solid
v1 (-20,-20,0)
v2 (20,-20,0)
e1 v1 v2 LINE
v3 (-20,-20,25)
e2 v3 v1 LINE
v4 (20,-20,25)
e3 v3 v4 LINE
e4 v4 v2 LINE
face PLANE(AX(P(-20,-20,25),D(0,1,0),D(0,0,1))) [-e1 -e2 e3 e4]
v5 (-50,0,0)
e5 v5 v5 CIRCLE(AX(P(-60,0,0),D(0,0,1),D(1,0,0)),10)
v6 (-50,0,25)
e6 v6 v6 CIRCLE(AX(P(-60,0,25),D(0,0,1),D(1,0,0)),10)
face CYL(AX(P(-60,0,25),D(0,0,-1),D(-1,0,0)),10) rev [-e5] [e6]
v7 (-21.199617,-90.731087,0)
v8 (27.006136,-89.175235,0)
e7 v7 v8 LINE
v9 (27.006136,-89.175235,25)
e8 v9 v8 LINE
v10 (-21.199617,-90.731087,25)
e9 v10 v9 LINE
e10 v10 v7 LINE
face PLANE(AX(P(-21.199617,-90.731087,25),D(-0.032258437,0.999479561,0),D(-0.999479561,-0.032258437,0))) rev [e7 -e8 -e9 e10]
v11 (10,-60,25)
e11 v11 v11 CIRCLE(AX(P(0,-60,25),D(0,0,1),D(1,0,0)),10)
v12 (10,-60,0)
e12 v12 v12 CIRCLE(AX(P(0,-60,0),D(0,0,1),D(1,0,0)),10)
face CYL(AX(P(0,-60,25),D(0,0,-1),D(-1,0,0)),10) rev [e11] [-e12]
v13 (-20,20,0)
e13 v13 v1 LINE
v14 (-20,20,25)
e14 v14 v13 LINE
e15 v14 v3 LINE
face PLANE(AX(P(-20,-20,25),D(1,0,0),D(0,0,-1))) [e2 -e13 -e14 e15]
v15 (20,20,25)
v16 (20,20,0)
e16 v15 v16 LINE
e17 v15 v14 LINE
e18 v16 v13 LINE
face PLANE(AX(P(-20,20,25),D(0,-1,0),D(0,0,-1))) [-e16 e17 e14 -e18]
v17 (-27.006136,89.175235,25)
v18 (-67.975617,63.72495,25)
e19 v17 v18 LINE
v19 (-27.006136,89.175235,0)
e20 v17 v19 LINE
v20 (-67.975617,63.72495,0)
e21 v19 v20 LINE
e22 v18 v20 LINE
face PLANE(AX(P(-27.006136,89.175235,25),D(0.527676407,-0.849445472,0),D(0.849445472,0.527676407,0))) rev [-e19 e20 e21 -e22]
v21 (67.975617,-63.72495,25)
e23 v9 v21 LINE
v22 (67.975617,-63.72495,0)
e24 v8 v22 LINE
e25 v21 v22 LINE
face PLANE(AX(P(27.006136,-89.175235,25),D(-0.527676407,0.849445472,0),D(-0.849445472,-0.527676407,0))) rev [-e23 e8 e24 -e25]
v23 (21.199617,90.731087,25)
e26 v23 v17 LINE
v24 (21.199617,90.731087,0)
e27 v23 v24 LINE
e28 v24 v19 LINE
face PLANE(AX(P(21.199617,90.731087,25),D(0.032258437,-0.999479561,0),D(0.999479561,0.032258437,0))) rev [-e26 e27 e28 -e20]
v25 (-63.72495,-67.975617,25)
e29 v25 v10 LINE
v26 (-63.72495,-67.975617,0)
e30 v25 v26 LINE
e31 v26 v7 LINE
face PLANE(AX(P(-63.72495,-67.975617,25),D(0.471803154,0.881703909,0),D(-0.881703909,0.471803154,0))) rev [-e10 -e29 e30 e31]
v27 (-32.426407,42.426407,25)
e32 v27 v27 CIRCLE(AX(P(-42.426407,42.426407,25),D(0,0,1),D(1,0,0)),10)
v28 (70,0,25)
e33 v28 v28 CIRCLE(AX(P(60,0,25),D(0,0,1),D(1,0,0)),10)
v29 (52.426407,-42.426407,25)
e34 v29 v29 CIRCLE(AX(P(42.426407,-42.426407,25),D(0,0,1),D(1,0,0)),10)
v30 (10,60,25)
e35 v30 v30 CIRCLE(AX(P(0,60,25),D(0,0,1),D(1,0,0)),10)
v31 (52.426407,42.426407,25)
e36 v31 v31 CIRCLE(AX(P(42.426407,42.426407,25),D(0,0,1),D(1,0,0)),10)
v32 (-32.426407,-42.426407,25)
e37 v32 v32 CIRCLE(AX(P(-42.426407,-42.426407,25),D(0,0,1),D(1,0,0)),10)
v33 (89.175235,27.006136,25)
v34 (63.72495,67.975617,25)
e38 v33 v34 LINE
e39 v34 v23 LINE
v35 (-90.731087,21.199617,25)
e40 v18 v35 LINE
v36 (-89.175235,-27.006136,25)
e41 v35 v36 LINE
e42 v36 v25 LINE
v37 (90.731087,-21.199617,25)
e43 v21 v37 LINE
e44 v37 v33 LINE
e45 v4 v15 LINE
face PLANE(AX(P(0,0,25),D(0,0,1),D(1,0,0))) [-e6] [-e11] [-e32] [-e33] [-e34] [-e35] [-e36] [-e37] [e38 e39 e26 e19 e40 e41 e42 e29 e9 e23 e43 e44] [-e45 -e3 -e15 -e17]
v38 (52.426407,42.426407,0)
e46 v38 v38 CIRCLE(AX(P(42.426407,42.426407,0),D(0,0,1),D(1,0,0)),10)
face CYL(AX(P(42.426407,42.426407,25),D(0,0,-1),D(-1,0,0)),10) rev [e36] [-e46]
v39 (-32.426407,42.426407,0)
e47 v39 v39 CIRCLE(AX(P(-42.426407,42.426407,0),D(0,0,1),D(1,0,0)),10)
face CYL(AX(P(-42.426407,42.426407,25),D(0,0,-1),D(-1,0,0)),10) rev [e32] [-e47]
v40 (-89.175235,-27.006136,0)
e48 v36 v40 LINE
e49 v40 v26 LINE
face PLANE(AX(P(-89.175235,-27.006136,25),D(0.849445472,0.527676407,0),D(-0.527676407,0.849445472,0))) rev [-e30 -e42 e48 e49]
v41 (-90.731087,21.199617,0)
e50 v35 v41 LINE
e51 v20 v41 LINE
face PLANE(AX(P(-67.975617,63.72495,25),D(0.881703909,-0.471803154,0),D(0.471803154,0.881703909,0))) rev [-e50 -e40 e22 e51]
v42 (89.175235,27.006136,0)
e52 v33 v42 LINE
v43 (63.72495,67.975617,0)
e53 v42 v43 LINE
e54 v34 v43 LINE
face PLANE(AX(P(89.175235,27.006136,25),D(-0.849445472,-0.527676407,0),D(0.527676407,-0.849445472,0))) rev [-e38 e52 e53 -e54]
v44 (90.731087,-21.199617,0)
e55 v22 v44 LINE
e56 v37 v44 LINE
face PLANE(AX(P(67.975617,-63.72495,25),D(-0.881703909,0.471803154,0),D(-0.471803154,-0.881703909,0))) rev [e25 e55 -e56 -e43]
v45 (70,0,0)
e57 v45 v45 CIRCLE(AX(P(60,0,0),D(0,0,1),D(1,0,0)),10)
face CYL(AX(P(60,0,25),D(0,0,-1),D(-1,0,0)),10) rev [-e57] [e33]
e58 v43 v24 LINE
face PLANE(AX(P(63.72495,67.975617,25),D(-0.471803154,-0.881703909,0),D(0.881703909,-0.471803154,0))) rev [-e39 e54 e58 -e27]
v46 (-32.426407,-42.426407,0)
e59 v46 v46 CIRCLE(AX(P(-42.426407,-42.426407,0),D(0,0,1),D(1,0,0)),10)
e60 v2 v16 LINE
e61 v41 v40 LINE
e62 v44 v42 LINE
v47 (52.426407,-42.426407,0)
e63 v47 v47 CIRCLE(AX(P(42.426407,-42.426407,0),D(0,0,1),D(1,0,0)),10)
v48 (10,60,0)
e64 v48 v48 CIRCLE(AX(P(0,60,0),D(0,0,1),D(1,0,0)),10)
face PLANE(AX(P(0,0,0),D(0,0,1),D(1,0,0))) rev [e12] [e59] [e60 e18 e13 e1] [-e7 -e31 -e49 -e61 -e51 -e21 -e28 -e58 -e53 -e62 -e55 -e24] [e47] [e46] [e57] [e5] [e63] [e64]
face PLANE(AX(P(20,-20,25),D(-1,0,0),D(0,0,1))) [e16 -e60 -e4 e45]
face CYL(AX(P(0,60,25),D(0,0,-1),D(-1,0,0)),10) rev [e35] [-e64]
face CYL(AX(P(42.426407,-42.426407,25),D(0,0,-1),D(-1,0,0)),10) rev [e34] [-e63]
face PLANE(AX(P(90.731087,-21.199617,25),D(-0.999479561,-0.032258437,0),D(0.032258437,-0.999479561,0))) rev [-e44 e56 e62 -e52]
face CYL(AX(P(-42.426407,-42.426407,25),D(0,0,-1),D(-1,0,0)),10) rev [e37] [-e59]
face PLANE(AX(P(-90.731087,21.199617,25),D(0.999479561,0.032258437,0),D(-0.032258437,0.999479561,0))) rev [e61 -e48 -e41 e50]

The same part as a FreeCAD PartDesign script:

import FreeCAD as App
import Part
import Sketcher

doc = App.newDocument("Part")
body = doc.addObject("PartDesign::Body", "Body")

# Sketch on XY plane
sketch1 = body.newObject("Sketcher::SketchObject", "Sketch")
sketch1.AttachmentSupport = (doc.getObject("XY_Plane"), [""])
sketch1.MapMode = "FlatFace"
sketch1.addGeometry([
    Part.LineSegment(App.Vector(21, 91, 0), App.Vector(-27, 89, 0)),  # 0
    Part.LineSegment(App.Vector(-27, 89, 0), App.Vector(-68, 64, 0)),  # 1
    Part.LineSegment(App.Vector(-68, 64, 0), App.Vector(-91, 21, 0)),  # 2
    Part.LineSegment(App.Vector(-91, 21, 0), App.Vector(-89, -27, 0)),  # 3
    Part.LineSegment(App.Vector(-89, -27, 0), App.Vector(-64, -68, 0)),  # 4
    Part.LineSegment(App.Vector(-64, -68, 0), App.Vector(-21, -91, 0)),  # 5
    Part.LineSegment(App.Vector(-21, -91, 0), App.Vector(27, -89, 0)),  # 6
    Part.LineSegment(App.Vector(27, -89, 0), App.Vector(68, -64, 0)),  # 7
    Part.LineSegment(App.Vector(68, -64, 0), App.Vector(91, -21, 0)),  # 8
    Part.LineSegment(App.Vector(91, -21, 0), App.Vector(89, 27, 0)),  # 9
    Part.LineSegment(App.Vector(89, 27, 0), App.Vector(64, 68, 0)),  # 10
    Part.LineSegment(App.Vector(64, 68, 0), App.Vector(21, 91, 0)),  # 11
    Part.Circle(App.Vector(-42, -42, 0), App.Vector(0, 0, 1), 10),  # 12
    Part.Circle(App.Vector(0, -60, 0), App.Vector(0, 0, 1), 10),  # 13
    Part.Circle(App.Vector(42, -42, 0), App.Vector(0, 0, 1), 10),  # 14
    Part.Circle(App.Vector(-60, 0, 0), App.Vector(0, 0, 1), 10),  # 15
    Part.Circle(App.Vector(-42, 42, 0), App.Vector(0, 0, 1), 10),  # 16
    Part.LineSegment(App.Vector(20, -20, 0), App.Vector(-20, -20, 0)),  # 17
    Part.LineSegment(App.Vector(-20, -20, 0), App.Vector(-20, 20, 0)),  # 18
    Part.LineSegment(App.Vector(-20, 20, 0), App.Vector(20, 20, 0)),  # 19
    Part.LineSegment(App.Vector(20, 20, 0), App.Vector(20, -20, 0)),  # 20
    Part.Circle(App.Vector(60, 0, 0), App.Vector(0, 0, 1), 10),  # 21
    Part.Circle(App.Vector(0, 60, 0), App.Vector(0, 0, 1), 10),  # 22
    Part.Circle(App.Vector(42, 42, 0), App.Vector(0, 0, 1), 10),  # 23
], False)
sketch1.addConstraint([
    Sketcher.Constraint("Coincident", 0, 2, 1, 1),
    Sketcher.Constraint("Coincident", 1, 2, 2, 1),
    Sketcher.Constraint("Coincident", 2, 2, 3, 1),
    Sketcher.Constraint("Coincident", 3, 2, 4, 1),
    Sketcher.Constraint("Coincident", 4, 2, 5, 1),
    Sketcher.Constraint("Coincident", 5, 2, 6, 1),
    Sketcher.Constraint("Coincident", 6, 2, 7, 1),
    Sketcher.Constraint("Coincident", 7, 2, 8, 1),
    Sketcher.Constraint("Coincident", 8, 2, 9, 1),
    Sketcher.Constraint("Coincident", 9, 2, 10, 1),
    Sketcher.Constraint("Coincident", 10, 2, 11, 1),
    Sketcher.Constraint("Coincident", 11, 2, 0, 1),
    Sketcher.Constraint("Coincident", 17, 2, 18, 1),
    Sketcher.Constraint("Coincident", 18, 2, 19, 1),
    Sketcher.Constraint("Coincident", 19, 2, 20, 1),
    Sketcher.Constraint("Coincident", 20, 2, 17, 1),
    Sketcher.Constraint("Horizontal", 17),
    Sketcher.Constraint("Vertical", 18),
    Sketcher.Constraint("Horizontal", 19),
    Sketcher.Constraint("Vertical", 20),
    Sketcher.Constraint("Equal", 12, 13),
    Sketcher.Constraint("Equal", 13, 14),
    Sketcher.Constraint("Equal", 14, 15),
    Sketcher.Constraint("Equal", 15, 16),
    Sketcher.Constraint("Equal", 16, 21),
    Sketcher.Constraint("Equal", 21, 22),
    Sketcher.Constraint("Equal", 22, 23),
    Sketcher.Constraint("Symmetric", 14, 3, 16, 3, -1, 1),
    Sketcher.Constraint("Symmetric", 15, 3, 21, 3, -1, 1),
    Sketcher.Constraint("Symmetric", 13, 3, 22, 3, -1, 1),
    Sketcher.Constraint("Symmetric", 12, 3, 23, 3, -1, 1),
    Sketcher.Constraint("Symmetric", 0, 2, 6, 2, -1, 1),
    Sketcher.Constraint("Symmetric", 1, 2, 7, 2, -1, 1),
    Sketcher.Constraint("Symmetric", 2, 2, 8, 2, -1, 1),
    Sketcher.Constraint("Symmetric", 3, 2, 9, 2, -1, 1),
    Sketcher.Constraint("Symmetric", 4, 2, 10, 2, -1, 1),
    Sketcher.Constraint("Symmetric", 5, 2, 11, 2, -1, 1),
    Sketcher.Constraint("Symmetric", 17, 2, 19, 2, -1, 1),
    Sketcher.Constraint("Symmetric", 12, 3, 14, 3, -2),
    Sketcher.Constraint("PointOnObject", 13, 3, -2),
    Sketcher.Constraint("PointOnObject", 15, 3, -1),
    Sketcher.Constraint("Perpendicular", 0, 3),
    Sketcher.Constraint("Perpendicular", 1, 4),
    Sketcher.Constraint("Perpendicular", 2, 5),
    Sketcher.Constraint("Equal", 19, 18),
    Sketcher.Constraint("Equal", 0, 1),
    Sketcher.Constraint("Equal", 1, 2),
    Sketcher.Constraint("Equal", 2, 3),
    Sketcher.Constraint("Equal", 3, 4),
    Sketcher.Constraint("Equal", 4, 5),
    Sketcher.Constraint("Diameter", 12, 20.0),
    Sketcher.Constraint("DistanceX", 17, 2, 17, 1, 40.0),
    Sketcher.Constraint("DistanceY", 13, 3, -1, 1, 60.0),
    Sketcher.Constraint("DistanceX", 15, 3, -1, 1, 60.0),
    Sketcher.Constraint("DistanceY", -1, 1, 1, 2, 63.72495),
    Sketcher.Constraint("DistanceX", 16, 3, 0, 2, 15.420271),
    Sketcher.Constraint("DistanceX", 1, 2, 16, 3, 25.54921),
    Sketcher.Constraint("DistanceX", 2, 2, 1, 2, 22.755469),
    Sketcher.Constraint("DistanceY", 2, 2, 16, 3, 21.22679),
    Sketcher.Constraint("DistanceY", 12, 3, 3, 2, 15.420271),
])
pad1 = body.newObject("PartDesign::Pad", "Pad")
pad1.Profile = sketch1
pad1.Length = 25

doc.recompute()
